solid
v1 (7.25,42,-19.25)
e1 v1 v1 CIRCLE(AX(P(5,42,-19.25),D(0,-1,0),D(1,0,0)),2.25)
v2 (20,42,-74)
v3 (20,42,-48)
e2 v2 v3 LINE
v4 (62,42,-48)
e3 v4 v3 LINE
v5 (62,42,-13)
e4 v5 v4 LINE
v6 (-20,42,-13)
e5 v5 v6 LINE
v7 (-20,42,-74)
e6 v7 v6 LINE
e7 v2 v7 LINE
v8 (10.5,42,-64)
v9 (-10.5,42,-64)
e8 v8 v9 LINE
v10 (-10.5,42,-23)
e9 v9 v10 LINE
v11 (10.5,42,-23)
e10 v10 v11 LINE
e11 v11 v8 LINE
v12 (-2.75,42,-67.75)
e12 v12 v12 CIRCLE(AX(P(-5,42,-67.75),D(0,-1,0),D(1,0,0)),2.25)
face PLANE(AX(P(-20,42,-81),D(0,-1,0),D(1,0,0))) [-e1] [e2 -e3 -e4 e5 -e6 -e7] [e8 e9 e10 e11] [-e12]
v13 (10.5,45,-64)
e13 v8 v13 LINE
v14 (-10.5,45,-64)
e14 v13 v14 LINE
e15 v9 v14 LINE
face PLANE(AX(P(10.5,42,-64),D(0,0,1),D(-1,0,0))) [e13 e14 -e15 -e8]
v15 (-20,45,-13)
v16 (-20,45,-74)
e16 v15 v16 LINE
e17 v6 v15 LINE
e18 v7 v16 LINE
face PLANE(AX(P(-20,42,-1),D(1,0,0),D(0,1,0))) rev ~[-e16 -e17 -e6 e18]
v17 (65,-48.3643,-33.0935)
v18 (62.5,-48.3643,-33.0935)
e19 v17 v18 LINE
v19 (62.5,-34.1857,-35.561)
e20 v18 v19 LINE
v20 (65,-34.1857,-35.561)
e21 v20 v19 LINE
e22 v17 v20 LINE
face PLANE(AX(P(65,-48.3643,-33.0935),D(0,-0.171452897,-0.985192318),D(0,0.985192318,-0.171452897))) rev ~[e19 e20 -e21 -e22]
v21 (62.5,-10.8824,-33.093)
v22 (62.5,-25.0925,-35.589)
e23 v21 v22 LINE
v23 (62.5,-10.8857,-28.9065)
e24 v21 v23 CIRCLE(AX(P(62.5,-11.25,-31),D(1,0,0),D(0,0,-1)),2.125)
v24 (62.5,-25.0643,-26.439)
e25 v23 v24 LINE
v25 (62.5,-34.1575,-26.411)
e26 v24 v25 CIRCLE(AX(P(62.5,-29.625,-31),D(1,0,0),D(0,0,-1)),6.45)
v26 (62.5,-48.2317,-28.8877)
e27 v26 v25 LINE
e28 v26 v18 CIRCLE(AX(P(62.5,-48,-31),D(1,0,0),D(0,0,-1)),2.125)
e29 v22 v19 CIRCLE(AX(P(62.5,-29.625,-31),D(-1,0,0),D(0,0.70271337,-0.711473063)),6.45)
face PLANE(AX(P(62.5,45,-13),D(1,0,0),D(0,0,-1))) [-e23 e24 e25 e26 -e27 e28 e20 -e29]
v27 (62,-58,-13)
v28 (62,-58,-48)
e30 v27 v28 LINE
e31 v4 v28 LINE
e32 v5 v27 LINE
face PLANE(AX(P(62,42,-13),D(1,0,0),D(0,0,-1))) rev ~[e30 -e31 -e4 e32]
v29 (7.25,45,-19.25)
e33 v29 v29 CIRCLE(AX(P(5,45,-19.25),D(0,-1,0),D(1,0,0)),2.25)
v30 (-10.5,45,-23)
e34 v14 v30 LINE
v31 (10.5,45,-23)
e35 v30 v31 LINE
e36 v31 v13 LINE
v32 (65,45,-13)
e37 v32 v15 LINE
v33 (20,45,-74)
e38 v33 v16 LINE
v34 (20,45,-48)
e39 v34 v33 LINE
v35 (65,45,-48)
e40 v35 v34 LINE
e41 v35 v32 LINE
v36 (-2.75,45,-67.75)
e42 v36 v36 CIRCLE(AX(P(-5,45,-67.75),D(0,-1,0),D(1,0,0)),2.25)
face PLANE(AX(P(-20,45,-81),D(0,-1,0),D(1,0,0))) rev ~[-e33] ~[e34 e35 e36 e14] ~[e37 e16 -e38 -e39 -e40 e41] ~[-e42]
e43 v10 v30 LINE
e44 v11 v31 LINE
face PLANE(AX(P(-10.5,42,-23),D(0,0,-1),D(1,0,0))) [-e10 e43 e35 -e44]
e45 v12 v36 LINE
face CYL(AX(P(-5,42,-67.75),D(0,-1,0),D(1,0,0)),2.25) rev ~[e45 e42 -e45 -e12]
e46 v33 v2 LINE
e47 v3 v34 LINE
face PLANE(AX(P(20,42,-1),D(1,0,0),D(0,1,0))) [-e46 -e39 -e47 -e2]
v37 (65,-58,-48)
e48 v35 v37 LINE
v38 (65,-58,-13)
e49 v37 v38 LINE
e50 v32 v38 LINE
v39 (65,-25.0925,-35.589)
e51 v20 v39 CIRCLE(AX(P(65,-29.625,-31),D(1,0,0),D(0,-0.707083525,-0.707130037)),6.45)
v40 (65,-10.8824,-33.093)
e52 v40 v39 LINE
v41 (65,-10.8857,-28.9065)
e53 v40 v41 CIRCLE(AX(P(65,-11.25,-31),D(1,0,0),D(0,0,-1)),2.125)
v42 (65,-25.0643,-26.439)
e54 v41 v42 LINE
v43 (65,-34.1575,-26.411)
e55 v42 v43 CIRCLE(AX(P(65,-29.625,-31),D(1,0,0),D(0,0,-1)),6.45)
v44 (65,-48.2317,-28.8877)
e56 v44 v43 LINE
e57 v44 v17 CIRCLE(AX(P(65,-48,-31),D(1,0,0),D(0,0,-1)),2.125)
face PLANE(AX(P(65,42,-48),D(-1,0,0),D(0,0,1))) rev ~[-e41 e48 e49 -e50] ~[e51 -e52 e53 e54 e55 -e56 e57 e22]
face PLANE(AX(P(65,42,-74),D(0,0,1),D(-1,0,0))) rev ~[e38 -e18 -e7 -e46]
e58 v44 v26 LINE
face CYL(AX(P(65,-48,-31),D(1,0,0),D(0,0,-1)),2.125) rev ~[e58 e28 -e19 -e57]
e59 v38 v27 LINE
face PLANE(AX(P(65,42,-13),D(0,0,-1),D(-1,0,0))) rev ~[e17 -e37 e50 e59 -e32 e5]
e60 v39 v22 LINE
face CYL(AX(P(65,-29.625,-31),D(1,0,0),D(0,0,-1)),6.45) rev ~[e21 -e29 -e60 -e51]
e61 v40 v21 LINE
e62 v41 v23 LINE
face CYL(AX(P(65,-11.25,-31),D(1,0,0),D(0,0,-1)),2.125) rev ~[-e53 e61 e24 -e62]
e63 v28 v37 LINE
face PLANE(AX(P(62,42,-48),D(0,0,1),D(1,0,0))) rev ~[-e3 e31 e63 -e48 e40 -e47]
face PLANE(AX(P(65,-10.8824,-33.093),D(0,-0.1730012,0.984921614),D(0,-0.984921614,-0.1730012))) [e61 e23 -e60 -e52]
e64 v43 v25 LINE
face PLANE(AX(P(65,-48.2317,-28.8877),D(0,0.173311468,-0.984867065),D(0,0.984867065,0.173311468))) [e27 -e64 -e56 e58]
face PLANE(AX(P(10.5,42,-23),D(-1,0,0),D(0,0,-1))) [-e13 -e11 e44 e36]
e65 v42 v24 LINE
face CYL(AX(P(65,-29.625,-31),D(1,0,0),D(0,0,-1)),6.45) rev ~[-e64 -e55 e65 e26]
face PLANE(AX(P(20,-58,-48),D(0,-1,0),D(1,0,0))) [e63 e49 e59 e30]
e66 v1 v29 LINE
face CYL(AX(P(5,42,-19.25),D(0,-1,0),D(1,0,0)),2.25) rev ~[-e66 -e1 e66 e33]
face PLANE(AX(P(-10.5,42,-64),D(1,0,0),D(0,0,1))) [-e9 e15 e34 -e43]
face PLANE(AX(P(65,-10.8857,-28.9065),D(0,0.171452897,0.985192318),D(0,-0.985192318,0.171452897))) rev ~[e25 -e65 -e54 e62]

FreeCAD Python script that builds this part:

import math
import FreeCAD as App
import Part
import Sketcher

V = App.Vector
Q = App.Units.Quantity

doc = App.newDocument("Part")
body = doc.addObject("PartDesign::Body", "Body")

sketch1 = doc.addObject("Sketcher::SketchObject", "Sketch")
body.addObject(sketch1)
sketch1.AttachmentSupport = (doc.XY_Plane, [""])
sketch1.MapMode = "FlatFace"
sketch1.addGeometry(Part.LineSegment(V(33, 33, 0), V(-33, 33, 0)), False)
sketch1.addGeometry(Part.LineSegment(V(-33, 33, 0), V(-33, -33, 0)), False)
sketch1.addGeometry(Part.LineSegment(V(-33, -33, 0), V(33, -33, 0)), False)
sketch1.addGeometry(Part.LineSegment(V(33, -33, 0), V(33, 33, 0)), False)
sketch1.addConstraint(Sketcher.Constraint("Coincident", 0, 2, 1, 1))
sketch1.addConstraint(Sketcher.Constraint("Coincident", 1, 2, 2, 1))
sketch1.addConstraint(Sketcher.Constraint("Coincident", 2, 2, 3, 1))
sketch1.addConstraint(Sketcher.Constraint("Coincident", 3, 2, 0, 1))
sketch1.addConstraint(Sketcher.Constraint("Horizontal", 0))
sketch1.addConstraint(Sketcher.Constraint("Vertical", 1))
sketch1.addConstraint(Sketcher.Constraint("Horizontal", 2))
sketch1.addConstraint(Sketcher.Constraint("Vertical", 3))
sketch1.addConstraint(Sketcher.Constraint("Symmetric", 0, 2, 2, 2, -1, 1))
sketch1.addConstraint(Sketcher.Constraint("Equal", 2, 1))
sketch1.addConstraint(Sketcher.Constraint("DistanceX", 0, 2, 0, 1, Q("66 mm")))
pad1 = doc.addObject("PartDesign::Pad", "Pad")
body.addObject(pad1)
pad1.Profile = sketch1
pad1.Length = 2

sketch2 = doc.addObject("Sketcher::SketchObject", "Sketch001")
body.addObject(sketch2)
sketch2.AttachmentSupport = (doc.XY_Plane, [""])
sketch2.MapMode = "FlatFace"
sketch2.addGeometry(Part.LineSegment(V(33, 33, 0), V(-33, 33, 0)), False)
sketch2.addGeometry(Part.LineSegment(V(-33, 33, 0), V(-33, -33, 0)), False)
sketch2.addGeometry(Part.LineSegment(V(-33, -33, 0), V(33, -33, 0)), False)
sketch2.addGeometry(Part.LineSegment(V(33, -33, 0), V(33, 33, 0)), False)
sketch2.addGeometry(Part.LineSegment(V(31, -31, 0), V(-31, -31, 0)), False)
sketch2.addGeometry(Part.LineSegment(V(-31, -31, 0), V(-31, 31, 0)), False)
sketch2.addGeometry(Part.LineSegment(V(-31, 31, 0), V(31, 31, 0)), False)
sketch2.addGeometry(Part.LineSegment(V(31, 31, 0), V(31, -31, 0)), False)
sketch2.addConstraint(Sketcher.Constraint("Coincident", 0, 2, 1, 1))
sketch2.addConstraint(Sketcher.Constraint("Coincident", 1, 2, 2, 1))
sketch2.addConstraint(Sketcher.Constraint("Coincident", 2, 2, 3, 1))
sketch2.addConstraint(Sketcher.Constraint("Coincident", 3, 2, 0, 1))
sketch2.addConstraint(Sketcher.Constraint("Coincident", 4, 2, 5, 1))
sketch2.addConstraint(Sketcher.Constraint("Coincident", 5, 2, 6, 1))
sketch2.addConstraint(Sketcher.Constraint("Coincident", 6, 2, 7, 1))
sketch2.addConstraint(Sketcher.Constraint("Coincident", 7, 2, 4, 1))
sketch2.addConstraint(Sketcher.Constraint("Horizontal", 0))
sketch2.addConstraint(Sketcher.Constraint("Vertical", 1))
sketch2.addConstraint(Sketcher.Constraint("Horizontal", 2))
sketch2.addConstraint(Sketcher.Constraint("Vertical", 3))
sketch2.addConstraint(Sketcher.Constraint("Horizontal", 4))
sketch2.addConstraint(Sketcher.Constraint("Vertical", 5))
sketch2.addConstraint(Sketcher.Constraint("Horizontal", 6))
sketch2.addConstraint(Sketcher.Constraint("Vertical", 7))
sketch2.addConstraint(Sketcher.Constraint("Symmetric", 0, 2, 2, 2, -1, 1))
sketch2.addConstraint(Sketcher.Constraint("Symmetric", 4, 2, 6, 2, -1, 1))
sketch2.addConstraint(Sketcher.Constraint("Equal", 2, 1))
sketch2.addConstraint(Sketcher.Constraint("Equal", 6, 5))
sketch2.addConstraint(Sketcher.Constraint("DistanceX", 4, 2, 4, 1, Q("62 mm")))
sketch2.addConstraint(Sketcher.Constraint("DistanceX", 1, 2, 4, 2, Q("2 mm")))
pad2 = doc.addObject("PartDesign::Pad", "Pad001")
body.addObject(pad2)
pad2.Profile = sketch2
pad2.Length = 12
pad2.Reversed = True

sketch3 = doc.addObject("Sketcher::SketchObject", "Sketch002")
body.addObject(sketch3)
sketch3.AttachmentSupport = (doc.XZ_Plane, [""])
sketch3.MapMode = "FlatFace"
sketch3.AttachmentOffset = App.Placement(V(0, 0, -33), App.Rotation())
sketch3.addGeometry(Part.LineSegment(V(20, -1, 0), V(-20, -1, 0)), False)
sketch3.addGeometry(Part.LineSegment(V(-20, -1, 0), V(-20, 2, 0)), False)
sketch3.addGeometry(Part.LineSegment(V(-20, 2, 0), V(20, 2, 0)), False)
sketch3.addGeometry(Part.LineSegment(V(20, 2, 0), V(20, -1, 0)), False)
sketch3.addConstraint(Sketcher.Constraint("Coincident", 0, 2, 1, 1))
sketch3.addConstraint(Sketcher.Constraint("Coincident", 1, 2, 2, 1))
sketch3.addConstraint(Sketcher.Constraint("Coincident", 2, 2, 3, 1))
sketch3.addConstraint(Sketcher.Constraint("Coincident", 3, 2, 0, 1))
sketch3.addConstraint(Sketcher.Constraint("Horizontal", 0))
sketch3.addConstraint(Sketcher.Constraint("Vertical", 1))
sketch3.addConstraint(Sketcher.Constraint("Horizontal", 2))
sketch3.addConstraint(Sketcher.Constraint("Vertical", 3))
sketch3.addConstraint(Sketcher.Constraint("DistanceX", 0, 2, 0, 1, Q("40 mm")))
sketch3.addConstraint(Sketcher.Constraint("DistanceY", 1, 1, 1, 2, Q("3 mm")))
sketch3.addConstraint(Sketcher.Constraint("DistanceX", 0, 2, -1, 1, Q("20 mm")))
sketch3.addConstraint(Sketcher.Constraint("DistanceY", 0, 2, -1, 1, Q("1 mm")))
pad3 = doc.addObject("PartDesign::Pad", "Pad002")
body.addObject(pad3)
pad3.Profile = sketch3
pad3.Length = 12
pad3.Reversed = True

sketch4 = doc.addObject("Sketcher::SketchObject", "Sketch003")
body.addObject(sketch4)
sketch4.AttachmentSupport = (doc.XY_Plane, [""])
sketch4.MapMode = "FlatFace"
sketch4.AttachmentOffset = App.Placement(V(0, 0, -1), App.Rotation())
sketch4.addGeometry(Part.LineSegment(V(-20, 42, 0), V(-20, 45, 0)), False)
sketch4.addGeometry(Part.LineSegment(V(-20, 45, 0), V(20, 45, 0)), False)
sketch4.addGeometry(Part.LineSegment(V(20, 45, 0), V(20, 42, 0)), False)
sketch4.addGeometry(Part.LineSegment(V(20, 42, 0), V(-20, 42, 0)), False)
sketch4.addConstraint(Sketcher.Constraint("Coincident", 0, 2, 1, 1))
sketch4.addConstraint(Sketcher.Constraint("Coincident", 1, 2, 2, 1))
sketch4.addConstraint(Sketcher.Constraint("Coincident", 2, 2, 3, 1))
sketch4.addConstraint(Sketcher.Constraint("Coincident", 3, 2, 0, 1))
sketch4.addConstraint(Sketcher.Constraint("Vertical", 0))
sketch4.addConstraint(Sketcher.Constraint("Horizontal", 1))
sketch4.addConstraint(Sketcher.Constraint("Vertical", 2))
sketch4.addConstraint(Sketcher.Constraint("Horizontal", 3))
sketch4.addConstraint(Sketcher.Constraint("DistanceY", 0, 1, 0, 2, Q("3 mm")))
sketch4.addConstraint(Sketcher.Constraint("DistanceX", 1, 1, 1, 2, Q("40 mm")))
sketch4.addConstraint(Sketcher.Constraint("DistanceX", 0, 2, -1, 1, Q("20 mm")))
sketch4.addConstraint(Sketcher.Constraint("DistanceY", -1, 1, 0, 2, Q("45 mm")))
pad4 = doc.addObject("PartDesign::Pad", "Pad003")
body.addObject(pad4)
pad4.Profile = sketch4
pad4.Length = 80
pad4.Reversed = True

sketch5 = doc.addObject("Sketcher::SketchObject", "Sketch004")
body.addObject(sketch5)
sketch5.AttachmentSupport = (doc.XZ_Plane, [""])
sketch5.MapMode = "FlatFace"
sketch5.AttachmentOffset = App.Placement(V(0, 0, -42), App.Rotation())
sketch5.addGeometry(Part.LineSegment(V(-10, -64, 0), V(10, -64, 0)), False)
sketch5.addGeometry(Part.LineSegment(V(10, -64, 0), V(10, -23, 0)), False)
sketch5.addGeometry(Part.LineSegment(V(10, -23, 0), V(-10, -23, 0)), False)
sketch5.addGeometry(Part.LineSegment(V(-10, -23, 0), V(-10, -64, 0)), False)
sketch5.addConstraint(Sketcher.Constraint("Coincident", 0, 2, 1, 1))
sketch5.addConstraint(Sketcher.Constraint("Coincident", 1, 2, 2, 1))
sketch5.addConstraint(Sketcher.Constraint("Coincident", 2, 2, 3, 1))
sketch5.addConstraint(Sketcher.Constraint("Coincident", 3, 2, 0, 1))
sketch5.addConstraint(Sketcher.Constraint("Horizontal", 0))
sketch5.addConstraint(Sketcher.Constraint("Vertical", 1))
sketch5.addConstraint(Sketcher.Constraint("Horizontal", 2))
sketch5.addConstraint(Sketcher.Constraint("Vertical", 3))
sketch5.addConstraint(Sketcher.Constraint("DistanceX", 0, 1, 0, 2, Q("21 mm")))
sketch5.addConstraint(Sketcher.Constraint("DistanceY", 1, 1, 1, 2, Q("41 mm")))
sketch5.addConstraint(Sketcher.Constraint("DistanceY", 0, 2, -1, 1, Q("64 mm")))
sketch5.addConstraint(Sketcher.Constraint("DistanceX", -1, 1, 0, 2, Q("10.5 mm")))
pocket1 = doc.addObject("PartDesign::Pocket", "Pocket")
body.addObject(pocket1)
pocket1.Profile = sketch5
pocket1.Length = 80

sketch6 = doc.addObject("Sketcher::SketchObject", "Sketch005")
body.addObject(sketch6)
sketch6.AttachmentSupport = (doc.XZ_Plane, [""])
sketch6.MapMode = "FlatFace"
sketch6.AttachmentOffset = App.Placement(V(0, 0, -42), App.Rotation())
sketch6.addGeometry(Part.Circle(V(-5, -67.8, 0), V(0, 0, 1), 2.2), False)
sketch6.addGeometry(Part.Circle(V(5, -19.2, 0), V(0, 0, 1), 2.2), False)
sketch6.addConstraint(Sketcher.Constraint("Equal", 0, 1))
sketch6.addConstraint(Sketcher.Constraint("Diameter", 0, Q("4.5 mm")))
sketch6.addConstraint(Sketcher.Constraint("DistanceX", 0, 3, -1, 1, Q("5 mm")))
sketch6.addConstraint(Sketcher.Constraint("DistanceX", -1, 1, 1, 3, Q("5 mm")))
sketch6.addConstraint(Sketcher.Constraint("DistanceY", 0, 3, 1, 3, Q("48.5 mm")))
sketch6.addConstraint(Sketcher.Constraint("DistanceY", 0, 3, -1, 1, Q("67.75 mm")))
pocket2 = doc.addObject("PartDesign::Pocket", "Pocket001")
body.addObject(pocket2)
pocket2.Profile = sketch6
pocket2.Length = 80

sketch7 = doc.addObject("Sketcher::SketchObject", "Sketch006")
body.addObject(sketch7)
sketch7.AttachmentSupport = (doc.XZ_Plane, [""])
sketch7.MapMode = "FlatFace"
sketch7.AttachmentOffset = App.Placement(V(0, 0, 33), App.Rotation())
sketch7.addGeometry(Part.LineSegment(V(33, 2, 0), V(-33, 2, 0)), False)
sketch7.addGeometry(Part.LineSegment(V(-33, 2, 0), V(-33, -12, 0)), False)
sketch7.addGeometry(Part.LineSegment(V(-33, -12, 0), V(33, -12, 0)), False)
sketch7.addGeometry(Part.LineSegment(V(33, -12, 0), V(33, 2, 0)), False)
sketch7.addConstraint(Sketcher.Constraint("Coincident", 0, 2, 1, 1))
sketch7.addConstraint(Sketcher.Constraint("Coincident", 1, 2, 2, 1))
sketch7.addConstraint(Sketcher.Constraint("Coincident", 2, 2, 3, 1))
sketch7.addConstraint(Sketcher.Constraint("Coincident", 3, 2, 0, 1))
sketch7.addConstraint(Sketcher.Constraint("Horizontal", 0))
sketch7.addConstraint(Sketcher.Constraint("Vertical", 1))
sketch7.addConstraint(Sketcher.Constraint("Horizontal", 2))
sketch7.addConstraint(Sketcher.Constraint("Vertical", 3))
sketch7.addConstraint(Sketcher.Constraint("DistanceX", 0, 2, 0, 1, Q("66 mm")))
sketch7.addConstraint(Sketcher.Constraint("DistanceY", 1, 2, 1, 1, Q("14 mm")))
sketch7.addConstraint(Sketcher.Constraint("DistanceX", 0, 2, -1, 1, Q("33 mm")))
sketch7.addConstraint(Sketcher.Constraint("DistanceY", -1, 1, 0, 2, Q("2 mm")))
pocket3 = doc.addObject("PartDesign::Pocket", "Pocket002")
body.addObject(pocket3)
pocket3.Profile = sketch7
pocket3.Length = 75

sketch8 = doc.addObject("Sketcher::SketchObject", "Sketch007")
body.addObject(sketch8)
sketch8.AttachmentSupport = (doc.XZ_Plane, [""])
sketch8.MapMode = "FlatFace"
sketch8.AttachmentOffset = App.Placement(V(0, 0, -42), App.Rotation())
sketch8.addGeometry(Part.LineSegment(V(65, 2, 0), V(20, 2, 0)), False)
sketch8.addGeometry(Part.LineSegment(V(20, 2, 0), V(20, -48, 0)), False)
sketch8.addGeometry(Part.LineSegment(V(20, -48, 0), V(65, -48, 0)), False)
sketch8.addGeometry(Part.LineSegment(V(65, -48, 0), V(65, 2, 0)), False)
sketch8.addConstraint(Sketcher.Constraint("Coincident", 0, 2, 1, 1))
sketch8.addConstraint(Sketcher.Constraint("Coincident", 1, 2, 2, 1))
sketch8.addConstraint(Sketcher.Constraint("Coincident", 2, 2, 3, 1))
sketch8.addConstraint(Sketcher.Constraint("Coincident", 3, 2, 0, 1))
sketch8.addConstraint(Sketcher.Constraint("Horizontal", 0))
sketch8.addConstraint(Sketcher.Constraint("Vertical", 1))
sketch8.addConstraint(Sketcher.Constraint("Horizontal", 2))
sketch8.addConstraint(Sketcher.Constraint("Vertical", 3))
sketch8.addConstraint(Sketcher.Constraint("DistanceX", 0, 2, 0, 1, Q("45 mm")))
sketch8.addConstraint(Sketcher.Constraint("DistanceY", 1, 2, 1, 1, Q("50 mm")))
sketch8.addConstraint(Sketcher.Constraint("DistanceX", -1, 1, 0, 2, Q("20 mm")))
sketch8.addConstraint(Sketcher.Constraint("DistanceY", -1, 1, 0, 2, Q("2 mm")))
pad5 = doc.addObject("PartDesign::Pad", "Pad004")
body.addObject(pad5)
pad5.Profile = sketch8
pad5.Length = 3
pad5.Reversed = True

sketch9 = doc.addObject("Sketcher::SketchObject", "Sketch008")
body.addObject(sketch9)
sketch9.AttachmentSupport = (doc.XZ_Plane, [""])
sketch9.MapMode = "FlatFace"
sketch9.AttachmentOffset = App.Placement(V(0, 0, -42), App.Rotation())
sketch9.addGeometry(Part.LineSegment(V(-20, 2, 0), V(-20, -13, 0)), False)
sketch9.addGeometry(Part.LineSegment(V(-20, -13, 0), V(65, -13, 0)), False)
sketch9.addGeometry(Part.LineSegment(V(65, -13, 0), V(65, 2, 0)), False)
sketch9.addGeometry(Part.LineSegment(V(65, 2, 0), V(-20, 2, 0)), False)
sketch9.addGeometry(Part.LineSegment(V(65, -74, 0), V(-20, -74, 0)), False)
sketch9.addGeometry(Part.LineSegment(V(-20, -74, 0), V(-20, -81, 0)), False)
sketch9.addGeometry(Part.LineSegment(V(-20, -81, 0), V(65, -81, 0)), False)
sketch9.addGeometry(Part.LineSegment(V(65, -81, 0), V(65, -74, 0)), False)
sketch9.addConstraint(Sketcher.Constraint("Coincident", 0, 2, 1, 1))
sketch9.addConstraint(Sketcher.Constraint("Coincident", 1, 2, 2, 1))
sketch9.addConstraint(Sketcher.Constraint("Coincident", 2, 2, 3, 1))
sketch9.addConstraint(Sketcher.Constraint("Coincident", 3, 2, 0, 1))
sketch9.addConstraint(Sketcher.Constraint("Coincident", 4, 2, 5, 1))
sketch9.addConstraint(Sketcher.Constraint("Coincident", 5, 2, 6, 1))
sketch9.addConstraint(Sketcher.Constraint("Coincident", 6, 2, 7, 1))
sketch9.addConstraint(Sketcher.Constraint("Coincident", 7, 2, 4, 1))
sketch9.addConstraint(Sketcher.Constraint("Vertical", 0))
sketch9.addConstraint(Sketcher.Constraint("Horizontal", 1))
sketch9.addConstraint(Sketcher.Constraint("Vertical", 2))
sketch9.addConstraint(Sketcher.Constraint("Horizontal", 3))
sketch9.addConstraint(Sketcher.Constraint("Horizontal", 4))
sketch9.addConstraint(Sketcher.Constraint("Vertical", 5))
sketch9.addConstraint(Sketcher.Constraint("Horizontal", 6))
sketch9.addConstraint(Sketcher.Constraint("Vertical", 7))
sketch9.addConstraint(Sketcher.Constraint("Vertical", 3, 2, 4, 2))
sketch9.addConstraint(Sketcher.Constraint("Vertical", 2, 2, 6, 2))
sketch9.addConstraint(Sketcher.Constraint("DistanceY", 0, 2, 0, 1, Q("15 mm")))
sketch9.addConstraint(Sketcher.Constraint("DistanceY", 5, 2, 5, 1, Q("7 mm")))
sketch9.addConstraint(Sketcher.Constraint("DistanceY", 5, 2, 3, 2, Q("83 mm")))
sketch9.addConstraint(Sketcher.Constraint("DistanceX", 1, 1, 1, 2, Q("85 mm")))
sketch9.addConstraint(Sketcher.Constraint("DistanceX", 0, 2, -1, 1, Q("20 mm")))
sketch9.addConstraint(Sketcher.Constraint("DistanceY", 0, 2, -1, 1, Q("13 mm")))
pocket4 = doc.addObject("PartDesign::Pocket", "Pocket003")
body.addObject(pocket4)
pocket4.Profile = sketch9
pocket4.Length = 10

sketch10 = doc.addObject("Sketcher::SketchObject", "Sketch009")
body.addObject(sketch10)
sketch10.AttachmentSupport = (doc.XZ_Plane, [""])
sketch10.MapMode = "FlatFace"
sketch10.AttachmentOffset = App.Placement(V(0, 0, -42), App.Rotation())
sketch10.addGeometry(Part.LineSegment(V(62, -48, 0), V(65, -48, 0)), False)
sketch10.addGeometry(Part.LineSegment(V(65, -48, 0), V(65, -13, 0)), False)
sketch10.addGeometry(Part.LineSegment(V(65, -13, 0), V(62, -13, 0)), False)
sketch10.addGeometry(Part.LineSegment(V(62, -13, 0), V(62, -48, 0)), False)
sketch10.addConstraint(Sketcher.Constraint("Coincident", 0, 2, 1, 1))
sketch10.addConstraint(Sketcher.Constraint("Coincident", 1, 2, 2, 1))
sketch10.addConstraint(Sketcher.Constraint("Coincident", 2, 2, 3, 1))
sketch10.addConstraint(Sketcher.Constraint("Coincident", 3, 2, 0, 1))
sketch10.addConstraint(Sketcher.Constraint("Horizontal", 0))
sketch10.addConstraint(Sketcher.Constraint("Vertical", 1))
sketch10.addConstraint(Sketcher.Constraint("Horizontal", 2))
sketch10.addConstraint(Sketcher.Constraint("Vertical", 3))
sketch10.addConstraint(Sketcher.Constraint("DistanceX", 0, 1, 0, 2, Q("3 mm")))
sketch10.addConstraint(Sketcher.Constraint("DistanceY", 1, 1, 1, 2, Q("35 mm")))
sketch10.addConstraint(Sketcher.Constraint("DistanceX", -1, 1, 0, 2, Q("65 mm")))
sketch10.addConstraint(Sketcher.Constraint("DistanceY", 0, 2, -1, 1, Q("48 mm")))
pad6 = doc.addObject("PartDesign::Pad", "Pad005")
body.addObject(pad6)
pad6.Profile = sketch10
pad6.Length = 100

sketch11 = doc.addObject("Sketcher::SketchObject", "Sketch010")
body.addObject(sketch11)
sketch11.AttachmentSupport = (doc.YZ_Plane, [""])
sketch11.MapMode = "FlatFace"
sketch11.AttachmentOffset = App.Placement(V(0, 0, 65), App.Rotation())
sketch11.addGeometry(Part.ArcOfCircle(Part.Circle(V(-11.25, -31, 0), V(0, 0, 1), 2.125), math.radians(-80.038564), math.radians(80.128534)), False)
sketch11.addGeometry(Part.LineSegment(V(-10.8857, -28.9065, 0), V(-25.0643, -26.439, 0)), False)
sketch11.addGeometry(Part.ArcOfCircle(Part.Circle(V(-29.625, -31, 0), V(0, 0, 1), 6.45), math.radians(45.001884), math.radians(134.645106)), False)
sketch11.addGeometry(Part.LineSegment(V(-34.1575, -26.411, 0), V(-48.2317, -28.8877, 0)), False)
sketch11.addGeometry(Part.ArcOfCircle(Part.Circle(V(-48, -31, 0), V(0, 0, 1), 2.125), math.radians(96.259797), math.radians(260.128534)), False)
sketch11.addGeometry(Part.LineSegment(V(-48.3643, -33.0935, 0), V(-34.1857, -35.561, 0)), False)
sketch11.addGeometry(Part.ArcOfCircle(Part.Circle(V(-29.625, -31, 0), V(0, 0, 1), 6.45), math.radians(-134.998116), math.radians(-45.354894)), False)
sketch11.addGeometry(Part.LineSegment(V(-25.0925, -35.589, 0), V(-10.8824, -33.093, 0)), False)
sketch11.addConstraint(Sketcher.Constraint("Coincident", 0, 2, 1, 1))
sketch11.addConstraint(Sketcher.Constraint("Coincident", 1, 2, 2, 1))
sketch11.addConstraint(Sketcher.Constraint("Coincident", 2, 2, 3, 1))
sketch11.addConstraint(Sketcher.Constraint("Coincident", 3, 2, 4, 1))
sketch11.addConstraint(Sketcher.Constraint("Coincident", 4, 2, 5, 1))
sketch11.addConstraint(Sketcher.Constraint("Coincident", 5, 2, 6, 1))
sketch11.addConstraint(Sketcher.Constraint("Coincident", 6, 2, 7, 1))
sketch11.addConstraint(Sketcher.Constraint("Coincident", 7, 2, 0, 1))
sketch11.addConstraint(Sketcher.Constraint("Coincident", 6, 3, 2, 3))
sketch11.addConstraint(Sketcher.Constraint("Radius", 2, Q("6.45 mm")))
sketch11.addConstraint(Sketcher.Constraint("Radius", 6, Q("6.45 mm")))
sketch11.addConstraint(Sketcher.Constraint("Radius", 0, Q("2.125 mm")))
sketch11.addConstraint(Sketcher.Constraint("Radius", 4, Q("2.125 mm")))
sketch11.addConstraint(Sketcher.Constraint("DistanceY", 5, 2, 2, 2, Q("9.15 mm")))
sketch11.addConstraint(Sketcher.Constraint("DistanceY", 6, 2, 1, 2, Q("9.15 mm")))
sketch11.addConstraint(Sketcher.Constraint("DistanceY", 0, 3, -1, 1, Q("31 mm")))
sketch11.addConstraint(Sketcher.Constraint("DistanceY", 2, 3, -1, 1, Q("31 mm")))
sketch11.addConstraint(Sketcher.Constraint("DistanceX", 4, 3, -1, 1, Q("48 mm")))
sketch11.addConstraint(Sketcher.Constraint("DistanceY", 4, 3, -1, 1, Q("31 mm")))
sketch11.addConstraint(Sketcher.Constraint("DistanceX", 0, 3, -1, 1, Q("11.25 mm")))
sketch11.addConstraint(Sketcher.Constraint("DistanceX", 6, 2, 7, 2, Q("14.21 mm")))
sketch11.addConstraint(Sketcher.Constraint("DistanceX", 2, 3, -1, 1, Q("29.625 mm")))
sketch11.addConstraint(Sketcher.Constraint("DistanceY", 1, 2, -1, 1, Q("26.439 mm")))
sketch11.addConstraint(Sketcher.Constraint("DistanceY", 2, 2, -1, 1, Q("26.411 mm")))
sketch11.addConstraint(Sketcher.Constraint("Distance", 1, Q("14.3917 mm")))
sketch11.addConstraint(Sketcher.Constraint("Distance", 3, Q("14.2905 mm")))
sketch11.addConstraint(Sketcher.Constraint("Distance", 5, Q("14.3917 mm")))
pocket5 = doc.addObject("PartDesign::Pocket", "Pocket004")
body.addObject(pocket5)
pocket5.Profile = sketch11
pocket5.Length = 2.5

doc.recompute()
